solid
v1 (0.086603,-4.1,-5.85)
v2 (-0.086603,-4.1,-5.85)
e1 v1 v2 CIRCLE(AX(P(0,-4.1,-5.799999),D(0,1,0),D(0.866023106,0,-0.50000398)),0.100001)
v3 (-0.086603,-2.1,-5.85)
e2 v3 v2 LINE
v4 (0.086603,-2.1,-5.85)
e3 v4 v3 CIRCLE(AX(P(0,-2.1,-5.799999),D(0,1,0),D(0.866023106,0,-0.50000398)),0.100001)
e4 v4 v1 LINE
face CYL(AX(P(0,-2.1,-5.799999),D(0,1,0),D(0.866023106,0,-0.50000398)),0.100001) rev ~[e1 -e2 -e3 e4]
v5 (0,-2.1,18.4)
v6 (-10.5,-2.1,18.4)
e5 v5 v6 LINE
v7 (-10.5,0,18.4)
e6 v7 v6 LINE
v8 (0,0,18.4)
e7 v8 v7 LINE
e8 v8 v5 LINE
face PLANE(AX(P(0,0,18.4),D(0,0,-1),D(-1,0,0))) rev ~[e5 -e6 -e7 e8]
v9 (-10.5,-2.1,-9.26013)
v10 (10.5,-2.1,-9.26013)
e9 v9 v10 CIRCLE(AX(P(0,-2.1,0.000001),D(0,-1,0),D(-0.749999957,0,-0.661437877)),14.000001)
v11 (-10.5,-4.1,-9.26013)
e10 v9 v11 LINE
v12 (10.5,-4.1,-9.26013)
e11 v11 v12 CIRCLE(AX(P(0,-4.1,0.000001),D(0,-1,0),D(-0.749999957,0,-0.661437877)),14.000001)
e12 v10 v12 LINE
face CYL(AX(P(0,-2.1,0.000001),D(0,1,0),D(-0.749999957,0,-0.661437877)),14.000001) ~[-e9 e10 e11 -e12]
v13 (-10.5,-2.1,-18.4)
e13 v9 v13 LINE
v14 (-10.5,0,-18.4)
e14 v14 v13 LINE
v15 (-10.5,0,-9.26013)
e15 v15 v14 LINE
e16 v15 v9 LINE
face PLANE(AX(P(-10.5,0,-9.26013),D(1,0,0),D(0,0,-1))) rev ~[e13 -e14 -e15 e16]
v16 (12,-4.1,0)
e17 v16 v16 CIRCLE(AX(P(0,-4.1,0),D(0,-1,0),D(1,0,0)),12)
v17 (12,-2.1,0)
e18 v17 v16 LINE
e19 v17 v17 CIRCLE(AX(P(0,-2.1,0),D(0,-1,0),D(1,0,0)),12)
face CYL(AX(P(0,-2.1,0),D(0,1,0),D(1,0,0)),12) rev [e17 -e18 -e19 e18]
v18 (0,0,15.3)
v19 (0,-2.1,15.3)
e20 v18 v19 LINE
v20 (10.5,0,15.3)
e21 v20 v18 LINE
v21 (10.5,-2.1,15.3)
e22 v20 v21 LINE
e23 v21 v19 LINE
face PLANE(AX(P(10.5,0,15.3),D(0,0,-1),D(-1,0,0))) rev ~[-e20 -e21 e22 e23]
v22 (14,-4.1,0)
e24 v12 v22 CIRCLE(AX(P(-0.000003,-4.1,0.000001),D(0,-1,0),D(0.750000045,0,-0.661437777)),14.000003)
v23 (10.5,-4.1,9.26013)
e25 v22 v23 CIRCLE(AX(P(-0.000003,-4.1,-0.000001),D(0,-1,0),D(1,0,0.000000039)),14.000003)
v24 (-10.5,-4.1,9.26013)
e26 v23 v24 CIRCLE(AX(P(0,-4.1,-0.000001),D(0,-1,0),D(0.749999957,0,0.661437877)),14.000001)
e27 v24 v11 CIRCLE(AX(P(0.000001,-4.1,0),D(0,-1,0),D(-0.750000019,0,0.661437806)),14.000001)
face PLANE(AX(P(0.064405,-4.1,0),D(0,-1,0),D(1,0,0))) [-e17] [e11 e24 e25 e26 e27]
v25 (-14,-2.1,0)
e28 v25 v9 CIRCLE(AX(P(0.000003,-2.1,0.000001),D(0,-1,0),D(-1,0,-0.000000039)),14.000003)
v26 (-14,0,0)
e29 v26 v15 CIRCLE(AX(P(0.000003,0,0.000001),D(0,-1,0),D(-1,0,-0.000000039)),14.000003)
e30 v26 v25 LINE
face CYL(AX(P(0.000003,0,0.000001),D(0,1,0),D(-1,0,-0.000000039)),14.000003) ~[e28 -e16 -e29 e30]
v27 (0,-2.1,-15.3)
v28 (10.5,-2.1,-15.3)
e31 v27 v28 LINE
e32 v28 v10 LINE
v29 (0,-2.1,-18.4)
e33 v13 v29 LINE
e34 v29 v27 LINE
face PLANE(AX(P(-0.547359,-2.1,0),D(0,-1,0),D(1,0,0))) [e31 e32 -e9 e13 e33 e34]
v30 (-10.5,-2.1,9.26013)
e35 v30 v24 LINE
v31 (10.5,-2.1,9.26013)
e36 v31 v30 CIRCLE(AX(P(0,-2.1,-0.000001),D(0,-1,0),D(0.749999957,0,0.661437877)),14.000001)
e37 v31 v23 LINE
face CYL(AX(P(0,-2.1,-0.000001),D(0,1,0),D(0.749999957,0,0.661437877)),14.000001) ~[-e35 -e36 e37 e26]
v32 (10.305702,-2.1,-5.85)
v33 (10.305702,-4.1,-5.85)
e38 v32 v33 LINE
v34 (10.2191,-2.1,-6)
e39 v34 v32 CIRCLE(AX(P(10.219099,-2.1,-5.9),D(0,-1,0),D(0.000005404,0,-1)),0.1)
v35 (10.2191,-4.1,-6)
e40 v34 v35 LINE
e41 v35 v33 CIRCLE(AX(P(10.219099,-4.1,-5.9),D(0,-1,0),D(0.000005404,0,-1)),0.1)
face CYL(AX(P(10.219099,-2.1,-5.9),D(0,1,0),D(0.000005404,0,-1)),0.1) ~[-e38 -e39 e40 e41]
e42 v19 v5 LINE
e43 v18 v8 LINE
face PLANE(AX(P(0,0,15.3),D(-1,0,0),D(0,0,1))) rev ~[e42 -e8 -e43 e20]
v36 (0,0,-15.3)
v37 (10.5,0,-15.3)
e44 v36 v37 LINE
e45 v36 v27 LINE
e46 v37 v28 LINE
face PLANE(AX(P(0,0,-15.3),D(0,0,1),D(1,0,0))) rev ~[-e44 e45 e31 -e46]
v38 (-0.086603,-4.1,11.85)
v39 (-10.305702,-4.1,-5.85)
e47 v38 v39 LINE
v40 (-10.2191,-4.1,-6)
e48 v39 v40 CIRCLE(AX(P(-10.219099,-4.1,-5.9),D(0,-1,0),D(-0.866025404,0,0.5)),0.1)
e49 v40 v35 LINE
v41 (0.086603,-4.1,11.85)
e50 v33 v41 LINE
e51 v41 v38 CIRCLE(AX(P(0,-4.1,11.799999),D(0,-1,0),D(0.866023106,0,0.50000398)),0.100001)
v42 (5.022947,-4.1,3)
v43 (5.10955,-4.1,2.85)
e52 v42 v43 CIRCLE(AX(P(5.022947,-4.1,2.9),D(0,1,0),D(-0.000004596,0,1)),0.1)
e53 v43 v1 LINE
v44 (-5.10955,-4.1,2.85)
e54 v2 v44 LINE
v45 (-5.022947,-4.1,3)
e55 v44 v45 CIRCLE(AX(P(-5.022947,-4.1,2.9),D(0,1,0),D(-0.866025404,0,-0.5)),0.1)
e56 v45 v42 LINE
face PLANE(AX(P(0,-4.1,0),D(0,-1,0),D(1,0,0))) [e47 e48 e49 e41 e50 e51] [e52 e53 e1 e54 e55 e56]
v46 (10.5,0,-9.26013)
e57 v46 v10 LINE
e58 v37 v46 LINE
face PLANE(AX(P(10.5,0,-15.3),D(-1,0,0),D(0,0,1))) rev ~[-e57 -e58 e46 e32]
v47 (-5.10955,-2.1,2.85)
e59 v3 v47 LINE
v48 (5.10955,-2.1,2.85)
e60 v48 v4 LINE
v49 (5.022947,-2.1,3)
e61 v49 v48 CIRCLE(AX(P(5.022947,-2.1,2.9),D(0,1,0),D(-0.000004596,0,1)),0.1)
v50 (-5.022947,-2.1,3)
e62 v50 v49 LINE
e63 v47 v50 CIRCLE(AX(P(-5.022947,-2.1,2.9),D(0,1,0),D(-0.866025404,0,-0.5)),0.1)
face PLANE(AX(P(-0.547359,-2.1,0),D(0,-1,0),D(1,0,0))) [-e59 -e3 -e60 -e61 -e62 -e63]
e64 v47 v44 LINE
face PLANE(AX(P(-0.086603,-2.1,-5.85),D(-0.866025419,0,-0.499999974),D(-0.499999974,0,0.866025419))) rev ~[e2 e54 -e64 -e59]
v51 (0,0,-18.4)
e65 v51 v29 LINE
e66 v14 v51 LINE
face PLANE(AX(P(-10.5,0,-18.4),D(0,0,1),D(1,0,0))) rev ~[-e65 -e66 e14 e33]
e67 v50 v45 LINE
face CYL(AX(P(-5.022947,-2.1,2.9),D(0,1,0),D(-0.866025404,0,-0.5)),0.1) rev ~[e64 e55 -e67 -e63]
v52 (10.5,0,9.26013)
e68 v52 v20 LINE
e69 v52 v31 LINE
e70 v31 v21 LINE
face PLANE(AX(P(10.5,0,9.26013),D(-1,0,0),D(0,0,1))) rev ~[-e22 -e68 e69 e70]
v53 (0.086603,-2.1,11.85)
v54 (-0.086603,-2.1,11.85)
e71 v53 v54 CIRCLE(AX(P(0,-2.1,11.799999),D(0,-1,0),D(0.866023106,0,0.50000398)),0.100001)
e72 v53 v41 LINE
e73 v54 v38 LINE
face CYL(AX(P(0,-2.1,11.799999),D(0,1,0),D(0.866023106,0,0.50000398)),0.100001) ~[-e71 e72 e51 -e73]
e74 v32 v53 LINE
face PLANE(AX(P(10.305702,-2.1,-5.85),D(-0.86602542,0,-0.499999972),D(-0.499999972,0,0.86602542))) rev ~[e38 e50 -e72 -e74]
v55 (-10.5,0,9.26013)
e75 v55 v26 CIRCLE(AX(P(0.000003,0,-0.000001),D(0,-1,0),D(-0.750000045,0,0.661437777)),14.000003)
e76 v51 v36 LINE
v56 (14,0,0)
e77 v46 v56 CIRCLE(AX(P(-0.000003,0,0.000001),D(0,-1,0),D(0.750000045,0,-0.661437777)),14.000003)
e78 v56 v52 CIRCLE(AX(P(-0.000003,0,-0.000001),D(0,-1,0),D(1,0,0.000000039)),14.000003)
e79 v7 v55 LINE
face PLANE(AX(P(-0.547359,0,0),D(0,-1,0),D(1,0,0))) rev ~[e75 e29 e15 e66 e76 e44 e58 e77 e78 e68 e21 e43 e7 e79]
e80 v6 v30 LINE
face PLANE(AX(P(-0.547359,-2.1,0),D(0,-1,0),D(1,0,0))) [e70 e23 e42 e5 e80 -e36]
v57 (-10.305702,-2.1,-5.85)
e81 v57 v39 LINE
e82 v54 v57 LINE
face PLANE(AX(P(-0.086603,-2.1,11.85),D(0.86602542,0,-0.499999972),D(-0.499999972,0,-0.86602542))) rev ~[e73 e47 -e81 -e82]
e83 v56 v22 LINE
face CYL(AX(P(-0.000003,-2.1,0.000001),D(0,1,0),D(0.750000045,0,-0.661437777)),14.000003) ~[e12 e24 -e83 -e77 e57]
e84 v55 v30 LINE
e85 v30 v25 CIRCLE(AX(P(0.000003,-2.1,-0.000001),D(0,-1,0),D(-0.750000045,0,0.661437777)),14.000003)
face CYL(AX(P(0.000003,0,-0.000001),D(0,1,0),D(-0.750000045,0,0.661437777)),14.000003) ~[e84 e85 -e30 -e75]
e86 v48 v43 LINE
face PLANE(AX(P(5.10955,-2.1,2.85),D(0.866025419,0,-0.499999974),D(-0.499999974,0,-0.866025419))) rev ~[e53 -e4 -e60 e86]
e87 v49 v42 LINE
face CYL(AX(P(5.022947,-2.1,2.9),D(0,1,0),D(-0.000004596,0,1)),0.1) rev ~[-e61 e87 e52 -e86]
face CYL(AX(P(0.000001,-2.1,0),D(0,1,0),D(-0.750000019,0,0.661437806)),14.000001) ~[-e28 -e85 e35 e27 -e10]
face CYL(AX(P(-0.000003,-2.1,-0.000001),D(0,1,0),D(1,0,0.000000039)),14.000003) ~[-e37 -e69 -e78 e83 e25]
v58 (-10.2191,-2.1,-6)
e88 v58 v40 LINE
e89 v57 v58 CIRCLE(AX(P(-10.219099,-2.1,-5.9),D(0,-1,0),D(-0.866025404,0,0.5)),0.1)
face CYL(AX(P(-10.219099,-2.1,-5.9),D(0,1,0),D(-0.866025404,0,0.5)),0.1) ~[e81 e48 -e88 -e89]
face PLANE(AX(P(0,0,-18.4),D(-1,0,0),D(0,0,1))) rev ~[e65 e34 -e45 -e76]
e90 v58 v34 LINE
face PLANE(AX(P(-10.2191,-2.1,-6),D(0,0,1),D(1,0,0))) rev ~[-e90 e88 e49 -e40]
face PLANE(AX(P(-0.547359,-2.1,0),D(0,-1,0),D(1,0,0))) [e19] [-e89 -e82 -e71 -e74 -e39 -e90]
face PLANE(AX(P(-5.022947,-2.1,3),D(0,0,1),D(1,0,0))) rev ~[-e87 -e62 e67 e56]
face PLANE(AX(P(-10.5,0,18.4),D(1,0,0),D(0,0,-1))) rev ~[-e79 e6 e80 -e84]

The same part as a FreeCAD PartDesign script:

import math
import FreeCAD as App
import Part
import Sketcher

V = App.Vector
Q = App.Units.Quantity

doc = App.newDocument("Part")
body = doc.addObject("PartDesign::Body", "Body")

sketch1 = doc.addObject("Sketcher::SketchObject", "Sketch")
body.addObject(sketch1)
sketch1.AttachmentSupport = (doc.XZ_Plane, [""])
sketch1.MapMode = "FlatFace"
sketch1.addGeometry([
    Part.ArcOfCircle(Part.Circle(V(0, 0, 0), V(0, 0, 1), 14), math.radians(139), math.radians(180)),
    Part.ArcOfCircle(Part.Circle(V(0, 0, 0), V(0, 0, 1), 14), math.radians(-180), math.radians(-139)),
    Part.LineSegment(V(-10.5, -9.3, 0), V(-10.5, -18.4, 0)),
    Part.LineSegment(V(-10.5, -18.4, 0), V(0, -18.4, 0)),
    Part.LineSegment(V(0, -18.4, 0), V(0, -15.3, 0)),
    Part.LineSegment(V(0, -15.3, 0), V(10.5, -15.3, 0)),
    Part.LineSegment(V(10.5, -15.3, 0), V(10.5, -9.3, 0)),
    Part.ArcOfCircle(Part.Circle(V(0, 0, 0), V(0, 0, 1), 14), math.radians(-41), math.radians(0)),
    Part.ArcOfCircle(Part.Circle(V(0, 0, 0), V(0, 0, 1), 14), math.radians(0), math.radians(41)),
    Part.LineSegment(V(10.5, 9.3, 0), V(10.5, 15.3, 0)),
    Part.LineSegment(V(10.5, 15.3, 0), V(0, 15.3, 0)),
    Part.LineSegment(V(0, 15.3, 0), V(0, 18.4, 0)),
    Part.LineSegment(V(0, 18.4, 0), V(-10.5, 18.4, 0)),
    Part.LineSegment(V(-10.5, 18.4, 0), V(-10.5, 9.3, 0)),
], False)
sketch1.addConstraint([
    Sketcher.Constraint("Tangent", 0, 2, 1, 1),
    Sketcher.Constraint("Coincident", 1, 2, 2, 1),
    Sketcher.Constraint("Coincident", 2, 2, 3, 1),
    Sketcher.Constraint("Coincident", 3, 2, 4, 1),
    Sketcher.Constraint("Coincident", 4, 2, 5, 1),
    Sketcher.Constraint("Coincident", 5, 2, 6, 1),
    Sketcher.Constraint("Coincident", 6, 2, 7, 1),
    Sketcher.Constraint("Tangent", 7, 2, 8, 1),
    Sketcher.Constraint("Coincident", 8, 2, 9, 1),
    Sketcher.Constraint("Coincident", 9, 2, 10, 1),
    Sketcher.Constraint("Coincident", 10, 2, 11, 1),
    Sketcher.Constraint("Coincident", 11, 2, 12, 1),
    Sketcher.Constraint("Coincident", 12, 2, 13, 1),
    Sketcher.Constraint("Coincident", 13, 2, 0, 1),
    Sketcher.Constraint("Vertical", 2),
    Sketcher.Constraint("Horizontal", 3),
    Sketcher.Constraint("Vertical", 4),
    Sketcher.Constraint("Horizontal", 5),
    Sketcher.Constraint("Vertical", 6),
    Sketcher.Constraint("Vertical", 9),
    Sketcher.Constraint("Horizontal", 10),
    Sketcher.Constraint("Vertical", 11),
    Sketcher.Constraint("Horizontal", 12),
    Sketcher.Constraint("Vertical", 13),
    Sketcher.Constraint("Coincident", 0, 3, -1, 1),
    Sketcher.Constraint("Coincident", 7, 3, -1, 1),
    Sketcher.Constraint("Equal", 0, 1),
    Sketcher.Constraint("Equal", 1, 7),
    Sketcher.Constraint("Equal", 7, 8),
    Sketcher.Constraint("Symmetric", 4, 2, 10, 2, -1, 1),
    Sketcher.Constraint("Symmetric", 3, 2, 11, 2, -1),
    Sketcher.Constraint("PointOnObject", 0, 2, -1),
    Sketcher.Constraint("PointOnObject", 7, 2, -1),
    Sketcher.Constraint("Horizontal", 1, 2, 6, 2),
    Sketcher.Constraint("Horizontal", 8, 2, 13, 2),
    Sketcher.Constraint("Vertical", 6, 2, 8, 2),
    Sketcher.Constraint("DistanceX", 3, 1, 3, 2, Q("10.5 mm")),
    Sketcher.Constraint("DistanceY", 4, 1, 4, 2, Q("3.1 mm")),
    Sketcher.Constraint("DistanceX", 0, 2, -1, 1, Q("14 mm")),
    Sketcher.Constraint("DistanceY", 2, 2, -1, 1, Q("18.4 mm")),
])
pad1 = doc.addObject("PartDesign::Pad", "Pad")
body.addObject(pad1)
pad1.Profile = sketch1
pad1.Length = 2.1

sketch2 = doc.addObject("Sketcher::SketchObject", "Sketch001")
body.addObject(sketch2)
sketch2.AttachmentSupport = (doc.XZ_Plane, [""])
sketch2.MapMode = "FlatFace"
sketch2.AttachmentOffset = App.Placement(V(0, 0, 2.1), App.Rotation())
sketch2.addGeometry([
    Part.ArcOfCircle(Part.Circle(V(0, 0, 0), V(0, 0, 1), 14), math.radians(-41), math.radians(0)),
    Part.ArcOfCircle(Part.Circle(V(0, 0, 0), V(0, 0, 1), 14), math.radians(0), math.radians(41)),
    Part.ArcOfCircle(Part.Circle(V(0, 0, 0), V(0, 0, 1), 14), math.radians(41), math.radians(139)),
    Part.ArcOfCircle(Part.Circle(V(0, 0, 0), V(0, 0, 1), 14), math.radians(139), math.radians(221)),
    Part.ArcOfCircle(Part.Circle(V(0, 0, 0), V(0, 0, 1), 14), math.radians(-139), math.radians(-41)),
    Part.Circle(V(0, 0, 0), V(0, 0, 1), 12),
    Part.LineSegment(V(10.31, -5.85, 0), V(0.09, 11.85, 0)),
    Part.ArcOfCircle(Part.Circle(V(0, 11.8, 0), V(0, 0, 1), 0.1), math.radians(30), math.radians(150)),
    Part.LineSegment(V(-0.09, 11.85, 0), V(-10.31, -5.85, 0)),
    Part.ArcOfCircle(Part.Circle(V(-10.22, -5.9, 0), V(0, 0, 1), 0.1), math.radians(150), math.radians(270)),
    Part.LineSegment(V(-10.22, -6, 0), V(10.22, -6, 0)),
    Part.ArcOfCircle(Part.Circle(V(10.22, -5.9, 0), V(0, 0, 1), 0.1), math.radians(-90), math.radians(30)),
    Part.LineSegment(V(5.11, 2.85, 0), V(0.09, -5.85, 0)),
    Part.ArcOfCircle(Part.Circle(V(0, -5.8, 0), V(0, 0, 1), 0.1), math.radians(-150), math.radians(-30)),
    Part.LineSegment(V(-0.09, -5.85, 0), V(-5.11, 2.85, 0)),
    Part.ArcOfCircle(Part.Circle(V(-5.02, 2.9, 0), V(0, 0, 1), 0.1), math.radians(90), math.radians(210)),
    Part.LineSegment(V(-5.02, 3, 0), V(5.02, 3, 0)),
    Part.ArcOfCircle(Part.Circle(V(5.02, 2.9, 0), V(0, 0, 1), 0.1), math.radians(-30), math.radians(90)),
], False)
sketch2.addConstraint([
    Sketcher.Constraint("Tangent", 0, 2, 1, 1),
    Sketcher.Constraint("Tangent", 1, 2, 2, 1),
    Sketcher.Constraint("Tangent", 2, 2, 3, 1),
    Sketcher.Constraint("Tangent", 3, 2, 4, 1),
    Sketcher.Constraint("Tangent", 4, 2, 0, 1),
    Sketcher.Constraint("Coincident", 6, 2, 7, 1),
    Sketcher.Constraint("Coincident", 7, 2, 8, 1),
    Sketcher.Constraint("Tangent", 8, 2, 9, 1),
    Sketcher.Constraint("Coincident", 9, 2, 10, 1),
    Sketcher.Constraint("Coincident", 10, 2, 11, 1),
    Sketcher.Constraint("Tangent", 11, 2, 6, 1),
    Sketcher.Constraint("Coincident", 12, 2, 13, 2),
    Sketcher.Constraint("Coincident", 13, 1, 14, 1),
    Sketcher.Constraint("Tangent", 14, 2, 15, 2),
    Sketcher.Constraint("Coincident", 15, 1, 16, 1),
    Sketcher.Constraint("Coincident", 16, 2, 17, 2),
    Sketcher.Constraint("Tangent", 17, 1, 12, 1),
    Sketcher.Constraint("Horizontal", 10),
    Sketcher.Constraint("Horizontal", 16),
    Sketcher.Constraint("Coincident", 0, 3, -1, 1),
    Sketcher.Constraint("Coincident", 2, 3, -1, 1),
    Sketcher.Constraint("Coincident", 5, 3, -1, 1),
    Sketcher.Constraint("Equal", 7, 9),
    Sketcher.Constraint("Equal", 9, 11),
    Sketcher.Constraint("Equal", 11, 13),
    Sketcher.Constraint("Equal", 13, 15),
    Sketcher.Constraint("Equal", 15, 17),
    Sketcher.Constraint("Symmetric", 6, 2, 7, 2, -2),
    Sketcher.Constraint("Symmetric", 12, 2, 13, 1, -2),
    Sketcher.Constraint("PointOnObject", 0, 2, -1),
    Sketcher.Constraint("Parallel", 8, 12),
    Sketcher.Constraint("Parallel", 6, 14),
    Sketcher.Constraint("Horizontal", 1, 2, 2, 2),
    Sketcher.Constraint("Horizontal", 3, 2, 4, 2),
    Sketcher.Constraint("Horizontal", 11, 2, 12, 2),
    Sketcher.Constraint("Vertical", 2, 2, 3, 2),
    Sketcher.Constraint("Vertical", 11, 3, 10, 2),
    Sketcher.Constraint("Vertical", 6, 2, 12, 2),
    Sketcher.Constraint("Vertical", 17, 3, 16, 2),
    Sketcher.Constraint("Equal", 6, 8),
    Sketcher.Constraint("Diameter", 5, Q("24 mm")),
    Sketcher.Constraint("Radius", 2, Q("14.000001 mm")),
    Sketcher.Constraint("Radius", 7, Q("0.100001 mm")),
    Sketcher.Constraint("Angle", 6, Q("119.999998 deg")),
    Sketcher.Constraint("DistanceY", 9, 2, -1, 1, Q("6 mm")),
    Sketcher.Constraint("DistanceY", -1, 1, 15, 1, Q("3 mm")),
    Sketcher.Constraint("DistanceY", -1, 1, 7, 3, Q("11.799999 mm")),
    Sketcher.Constraint("DistanceY", 13, 3, -1, 1, Q("5.799999 mm")),
    Sketcher.Constraint("DistanceX", -1, 1, 1, 2, Q("10.5 mm")),
    Sketcher.Constraint("DistanceX", 10, 1, 10, 2, Q("20.4382 mm")),
    Sketcher.Constraint("DistanceX", 16, 1, 16, 2, Q("10.045894 mm")),
])
pad2 = doc.addObject("PartDesign::Pad", "Pad001")
body.addObject(pad2)
pad2.Profile = sketch2
pad2.Length = 2

doc.recompute()
